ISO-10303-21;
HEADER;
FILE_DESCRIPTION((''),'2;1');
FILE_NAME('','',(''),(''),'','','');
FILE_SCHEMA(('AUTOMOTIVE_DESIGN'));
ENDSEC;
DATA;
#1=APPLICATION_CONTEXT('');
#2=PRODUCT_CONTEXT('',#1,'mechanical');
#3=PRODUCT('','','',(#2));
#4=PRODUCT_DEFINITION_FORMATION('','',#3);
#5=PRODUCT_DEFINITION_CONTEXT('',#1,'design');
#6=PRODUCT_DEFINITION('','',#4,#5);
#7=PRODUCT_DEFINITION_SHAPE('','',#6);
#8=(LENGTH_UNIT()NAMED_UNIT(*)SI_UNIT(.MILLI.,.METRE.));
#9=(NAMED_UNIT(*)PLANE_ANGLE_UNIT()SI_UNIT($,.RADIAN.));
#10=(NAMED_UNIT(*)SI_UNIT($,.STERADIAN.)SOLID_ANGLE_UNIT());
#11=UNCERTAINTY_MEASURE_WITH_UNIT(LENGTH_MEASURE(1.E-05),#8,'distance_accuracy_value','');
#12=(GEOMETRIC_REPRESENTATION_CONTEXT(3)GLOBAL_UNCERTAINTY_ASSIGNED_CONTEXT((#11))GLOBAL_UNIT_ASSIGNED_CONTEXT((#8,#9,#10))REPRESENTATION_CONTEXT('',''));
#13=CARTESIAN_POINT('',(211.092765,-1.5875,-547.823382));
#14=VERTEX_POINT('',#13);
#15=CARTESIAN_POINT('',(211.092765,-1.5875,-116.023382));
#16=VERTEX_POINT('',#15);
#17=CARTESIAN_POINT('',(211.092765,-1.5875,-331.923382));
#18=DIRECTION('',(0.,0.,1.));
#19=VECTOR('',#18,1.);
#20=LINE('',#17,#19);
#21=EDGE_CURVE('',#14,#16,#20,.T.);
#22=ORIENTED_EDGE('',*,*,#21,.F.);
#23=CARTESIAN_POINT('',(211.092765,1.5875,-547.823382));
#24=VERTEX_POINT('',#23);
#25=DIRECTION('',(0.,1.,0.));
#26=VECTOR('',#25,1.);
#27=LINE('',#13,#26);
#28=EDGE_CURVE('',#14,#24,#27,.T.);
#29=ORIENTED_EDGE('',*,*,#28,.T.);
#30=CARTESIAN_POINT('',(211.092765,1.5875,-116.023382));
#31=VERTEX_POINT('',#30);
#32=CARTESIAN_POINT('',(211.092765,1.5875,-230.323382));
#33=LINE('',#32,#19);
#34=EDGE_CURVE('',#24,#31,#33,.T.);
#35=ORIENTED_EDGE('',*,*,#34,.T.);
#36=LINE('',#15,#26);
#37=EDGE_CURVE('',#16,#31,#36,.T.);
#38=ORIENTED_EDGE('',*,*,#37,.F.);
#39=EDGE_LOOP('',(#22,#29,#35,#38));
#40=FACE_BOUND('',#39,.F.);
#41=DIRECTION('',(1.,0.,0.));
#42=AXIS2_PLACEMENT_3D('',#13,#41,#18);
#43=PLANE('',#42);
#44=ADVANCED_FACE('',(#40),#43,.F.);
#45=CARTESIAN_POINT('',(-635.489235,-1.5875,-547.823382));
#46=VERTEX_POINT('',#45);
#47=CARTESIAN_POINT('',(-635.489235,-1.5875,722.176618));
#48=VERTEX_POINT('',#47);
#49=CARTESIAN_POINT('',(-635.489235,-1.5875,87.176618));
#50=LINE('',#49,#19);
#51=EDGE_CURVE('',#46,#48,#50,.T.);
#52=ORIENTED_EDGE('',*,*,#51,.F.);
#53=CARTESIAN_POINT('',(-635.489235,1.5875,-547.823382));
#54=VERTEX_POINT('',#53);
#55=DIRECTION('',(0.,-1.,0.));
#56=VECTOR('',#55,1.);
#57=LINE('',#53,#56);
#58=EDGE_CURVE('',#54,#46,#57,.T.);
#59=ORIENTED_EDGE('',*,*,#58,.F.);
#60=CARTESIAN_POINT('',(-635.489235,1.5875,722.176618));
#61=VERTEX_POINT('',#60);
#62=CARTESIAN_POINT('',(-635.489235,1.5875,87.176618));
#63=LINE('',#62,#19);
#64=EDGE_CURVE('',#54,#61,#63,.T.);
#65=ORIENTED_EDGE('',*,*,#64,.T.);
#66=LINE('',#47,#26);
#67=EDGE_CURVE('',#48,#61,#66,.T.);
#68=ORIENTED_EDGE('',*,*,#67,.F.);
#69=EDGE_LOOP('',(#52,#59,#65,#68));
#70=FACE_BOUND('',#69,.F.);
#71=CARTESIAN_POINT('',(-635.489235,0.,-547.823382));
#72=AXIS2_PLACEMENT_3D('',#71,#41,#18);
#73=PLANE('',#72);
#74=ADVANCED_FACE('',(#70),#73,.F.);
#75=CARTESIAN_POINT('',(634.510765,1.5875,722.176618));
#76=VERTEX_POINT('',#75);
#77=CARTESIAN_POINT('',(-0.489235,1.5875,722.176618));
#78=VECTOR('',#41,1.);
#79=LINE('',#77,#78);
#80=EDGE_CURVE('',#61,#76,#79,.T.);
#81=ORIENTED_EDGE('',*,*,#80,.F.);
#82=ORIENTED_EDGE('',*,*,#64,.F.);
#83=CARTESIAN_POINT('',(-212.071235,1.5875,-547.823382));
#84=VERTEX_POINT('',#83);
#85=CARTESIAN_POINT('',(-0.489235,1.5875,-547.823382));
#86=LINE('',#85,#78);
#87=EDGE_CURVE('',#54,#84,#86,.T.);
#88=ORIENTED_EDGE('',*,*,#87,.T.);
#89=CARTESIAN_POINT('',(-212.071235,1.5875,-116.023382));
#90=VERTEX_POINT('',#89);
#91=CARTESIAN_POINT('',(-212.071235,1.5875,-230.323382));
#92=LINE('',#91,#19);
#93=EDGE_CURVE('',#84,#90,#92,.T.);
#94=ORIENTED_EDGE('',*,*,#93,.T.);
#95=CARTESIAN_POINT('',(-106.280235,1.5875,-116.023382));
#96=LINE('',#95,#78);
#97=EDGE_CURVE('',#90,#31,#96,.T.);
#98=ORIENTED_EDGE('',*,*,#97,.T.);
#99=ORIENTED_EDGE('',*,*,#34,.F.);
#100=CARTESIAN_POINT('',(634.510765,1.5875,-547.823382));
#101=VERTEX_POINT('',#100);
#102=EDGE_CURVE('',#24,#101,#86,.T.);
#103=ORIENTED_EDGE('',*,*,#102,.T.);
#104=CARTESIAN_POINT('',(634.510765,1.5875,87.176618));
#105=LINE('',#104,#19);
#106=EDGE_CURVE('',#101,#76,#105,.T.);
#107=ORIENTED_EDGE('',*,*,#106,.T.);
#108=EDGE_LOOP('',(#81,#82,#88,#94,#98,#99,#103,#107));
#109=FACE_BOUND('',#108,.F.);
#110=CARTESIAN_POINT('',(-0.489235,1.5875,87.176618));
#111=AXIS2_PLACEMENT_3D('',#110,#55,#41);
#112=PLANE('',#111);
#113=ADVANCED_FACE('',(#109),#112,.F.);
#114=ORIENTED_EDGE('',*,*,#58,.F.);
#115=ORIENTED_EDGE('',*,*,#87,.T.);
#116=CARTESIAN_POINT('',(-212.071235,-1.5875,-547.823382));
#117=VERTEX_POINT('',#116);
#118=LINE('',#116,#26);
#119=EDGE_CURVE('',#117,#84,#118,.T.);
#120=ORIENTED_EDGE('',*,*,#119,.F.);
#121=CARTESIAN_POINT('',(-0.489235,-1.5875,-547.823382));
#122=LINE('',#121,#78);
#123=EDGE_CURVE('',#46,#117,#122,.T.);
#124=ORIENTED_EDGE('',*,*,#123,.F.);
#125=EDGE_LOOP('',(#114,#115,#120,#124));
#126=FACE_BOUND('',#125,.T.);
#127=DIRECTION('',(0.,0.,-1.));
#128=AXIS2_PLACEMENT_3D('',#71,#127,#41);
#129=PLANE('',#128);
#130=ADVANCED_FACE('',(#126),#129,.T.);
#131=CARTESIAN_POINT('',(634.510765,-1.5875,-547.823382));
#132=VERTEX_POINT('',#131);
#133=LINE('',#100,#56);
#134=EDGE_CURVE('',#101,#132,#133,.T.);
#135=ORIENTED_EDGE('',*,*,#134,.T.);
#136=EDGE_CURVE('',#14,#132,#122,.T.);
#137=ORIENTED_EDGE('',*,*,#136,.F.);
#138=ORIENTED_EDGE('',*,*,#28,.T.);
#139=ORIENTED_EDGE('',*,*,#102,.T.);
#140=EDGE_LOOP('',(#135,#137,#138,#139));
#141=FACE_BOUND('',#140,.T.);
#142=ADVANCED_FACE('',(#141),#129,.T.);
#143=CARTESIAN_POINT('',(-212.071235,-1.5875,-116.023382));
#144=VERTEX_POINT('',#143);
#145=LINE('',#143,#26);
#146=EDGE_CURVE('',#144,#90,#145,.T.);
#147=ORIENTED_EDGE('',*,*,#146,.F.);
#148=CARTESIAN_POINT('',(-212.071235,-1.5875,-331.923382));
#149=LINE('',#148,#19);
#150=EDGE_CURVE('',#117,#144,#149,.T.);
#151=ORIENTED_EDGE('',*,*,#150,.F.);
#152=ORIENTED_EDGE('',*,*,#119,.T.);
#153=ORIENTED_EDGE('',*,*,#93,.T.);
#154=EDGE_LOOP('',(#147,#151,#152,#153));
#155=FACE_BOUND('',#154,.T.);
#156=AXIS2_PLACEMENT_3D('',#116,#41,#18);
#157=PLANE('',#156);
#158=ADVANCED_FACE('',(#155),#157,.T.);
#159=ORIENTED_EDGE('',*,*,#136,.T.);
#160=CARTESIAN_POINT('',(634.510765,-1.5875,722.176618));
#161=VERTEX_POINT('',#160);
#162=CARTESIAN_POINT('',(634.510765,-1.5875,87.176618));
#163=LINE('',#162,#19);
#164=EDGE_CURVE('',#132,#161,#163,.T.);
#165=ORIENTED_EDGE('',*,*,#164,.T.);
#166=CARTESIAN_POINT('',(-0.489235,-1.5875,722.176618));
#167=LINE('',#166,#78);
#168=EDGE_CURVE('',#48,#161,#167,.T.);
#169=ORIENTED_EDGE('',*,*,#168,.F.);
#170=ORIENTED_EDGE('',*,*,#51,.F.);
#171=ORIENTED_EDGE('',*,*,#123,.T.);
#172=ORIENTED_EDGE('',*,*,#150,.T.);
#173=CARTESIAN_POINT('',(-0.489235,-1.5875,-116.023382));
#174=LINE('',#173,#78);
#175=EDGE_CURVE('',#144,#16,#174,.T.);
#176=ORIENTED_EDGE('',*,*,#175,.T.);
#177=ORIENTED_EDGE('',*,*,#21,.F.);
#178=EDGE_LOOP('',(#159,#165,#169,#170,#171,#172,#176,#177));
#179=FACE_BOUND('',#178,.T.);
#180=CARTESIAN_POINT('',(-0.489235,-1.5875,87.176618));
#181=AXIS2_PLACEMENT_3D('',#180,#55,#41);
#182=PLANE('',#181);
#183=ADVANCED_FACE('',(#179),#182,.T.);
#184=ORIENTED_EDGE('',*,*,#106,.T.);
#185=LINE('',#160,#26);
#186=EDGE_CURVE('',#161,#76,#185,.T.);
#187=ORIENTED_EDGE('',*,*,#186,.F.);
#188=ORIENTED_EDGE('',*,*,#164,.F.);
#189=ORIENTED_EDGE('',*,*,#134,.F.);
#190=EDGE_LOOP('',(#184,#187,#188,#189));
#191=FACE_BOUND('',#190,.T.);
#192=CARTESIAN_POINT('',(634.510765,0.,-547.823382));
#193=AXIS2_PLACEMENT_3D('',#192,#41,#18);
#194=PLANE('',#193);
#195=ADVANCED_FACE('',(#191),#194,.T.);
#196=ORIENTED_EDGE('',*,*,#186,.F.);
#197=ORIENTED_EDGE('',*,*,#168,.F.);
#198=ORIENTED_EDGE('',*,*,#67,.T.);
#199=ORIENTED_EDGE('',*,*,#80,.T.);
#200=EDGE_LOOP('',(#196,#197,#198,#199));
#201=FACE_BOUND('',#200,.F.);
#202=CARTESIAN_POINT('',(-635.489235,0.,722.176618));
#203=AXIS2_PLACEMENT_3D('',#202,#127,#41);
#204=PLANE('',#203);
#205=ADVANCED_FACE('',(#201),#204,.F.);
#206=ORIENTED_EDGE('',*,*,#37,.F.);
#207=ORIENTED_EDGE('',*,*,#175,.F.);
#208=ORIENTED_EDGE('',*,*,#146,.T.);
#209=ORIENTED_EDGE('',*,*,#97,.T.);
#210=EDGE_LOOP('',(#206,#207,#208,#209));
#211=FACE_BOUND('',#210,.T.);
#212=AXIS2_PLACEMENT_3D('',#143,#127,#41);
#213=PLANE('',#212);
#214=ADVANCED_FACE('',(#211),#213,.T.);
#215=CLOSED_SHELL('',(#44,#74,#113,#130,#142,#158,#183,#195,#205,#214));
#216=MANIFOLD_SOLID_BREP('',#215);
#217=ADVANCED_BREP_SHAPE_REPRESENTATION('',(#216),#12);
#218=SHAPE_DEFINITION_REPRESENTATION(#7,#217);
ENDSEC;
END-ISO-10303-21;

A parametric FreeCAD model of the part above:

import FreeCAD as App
import Part
import Sketcher
from FreeCAD import Vector
Q = App.Units.Quantity

doc = App.newDocument("Part")
body = doc.addObject("PartDesign::Body", "Body")

sketch1 = body.newObject("Sketcher::SketchObject", "Sketch")
sketch1.AttachmentSupport = (doc.getObject("XZ_Plane"), [""])
sketch1.MapMode = "FlatFace"
sketch1.addGeometry(Part.LineSegment(Vector(-635.489235, 722.176618, 0), Vector(-635.489235, -547.823382, 0)), False)
sketch1.addGeometry(Part.LineSegment(Vector(-635.489235, -547.823382, 0), Vector(634.510765, -547.823382, 0)), False)
sketch1.addGeometry(Part.LineSegment(Vector(634.510765, -547.823382, 0), Vector(634.510765, 722.176618, 0)), False)
sketch1.addGeometry(Part.LineSegment(Vector(634.510765, 722.176618, 0), Vector(-635.489235, 722.176618, 0)), False)
sketch1.addConstraint(Sketcher.Constraint("Coincident", 0, 2, 1, 1))
sketch1.addConstraint(Sketcher.Constraint("Coincident", 1, 2, 2, 1))
sketch1.addConstraint(Sketcher.Constraint("Coincident", 2, 2, 3, 1))
sketch1.addConstraint(Sketcher.Constraint("Coincident", 3, 2, 0, 1))
sketch1.addConstraint(Sketcher.Constraint("Vertical", 0))
sketch1.addConstraint(Sketcher.Constraint("Horizontal", 1))
sketch1.addConstraint(Sketcher.Constraint("Vertical", 2))
sketch1.addConstraint(Sketcher.Constraint("Horizontal", 3))
sketch1.addConstraint(Sketcher.Constraint("Equal", 3, 0))
sketch1.addConstraint(Sketcher.Constraint("DistanceX", 1, 1, 1, 2, Q("50 in")))
sketch1.addConstraint(Sketcher.Constraint("DistanceY", 0, 2, -1, 1, 547.823382))
sketch1.addConstraint(Sketcher.Constraint("DistanceX", 0, 2, -1, 1, 635.489235))
pad1 = body.newObject("PartDesign::Pad", "Pad")
pad1.Profile = sketch1
pad1.Length = Q("0.125 in")
pad1.Midplane = True

sketch2 = body.newObject("Sketcher::SketchObject", "Sketch001")
sketch2.AttachmentSupport = (doc.getObject("XZ_Plane"), [""])
sketch2.MapMode = "FlatFace"
sketch2.AttachmentOffset = App.Placement(Vector(0, 0, 0.0625 * 25.4), App.Rotation())
sketch2.addGeometry(Part.LineSegment(Vector(-212.071235, -116.023382, 0), Vector(-212.071235, -547.823382, 0)), False)
sketch2.addGeometry(Part.LineSegment(Vector(-212.071235, -547.823382, 0), Vector(211.092765, -547.823382, 0)), False)
sketch2.addGeometry(Part.LineSegment(Vector(211.092765, -547.823382, 0), Vector(211.092765, -116.023382, 0)), False)
sketch2.addGeometry(Part.LineSegment(Vector(211.092765, -116.023382, 0), Vector(-212.071235, -116.023382, 0)), False)
sketch2.addConstraint(Sketcher.Constraint("Coincident", 0, 2, 1, 1))
sketch2.addConstraint(Sketcher.Constraint("Coincident", 1, 2, 2, 1))
sketch2.addConstraint(Sketcher.Constraint("Coincident", 2, 2, 3, 1))
sketch2.addConstraint(Sketcher.Constraint("Coincident", 3, 2, 0, 1))
sketch2.addConstraint(Sketcher.Constraint("Vertical", 0))
sketch2.addConstraint(Sketcher.Constraint("Horizontal", 1))
sketch2.addConstraint(Sketcher.Constraint("Vertical", 2))
sketch2.addConstraint(Sketcher.Constraint("Horizontal", 3))
sketch2.addConstraint(Sketcher.Constraint("DistanceY", 0, 2, 0, 1, Q("17 in")))
sketch2.addConstraint(Sketcher.Constraint("DistanceX", 1, 1, 1, 2, Q("16.66 in")))
sketch2.addConstraint(Sketcher.Constraint("DistanceY", 0, 2, -1, 1, 547.823382))
sketch2.addConstraint(Sketcher.Constraint("DistanceX", 0, 2, -1, 1, 212.071235))
pocket1 = body.newObject("PartDesign::Pocket", "Pocket")
pocket1.Profile = sketch2
pocket1.Type = "ThroughAll"

doc.recompute()
